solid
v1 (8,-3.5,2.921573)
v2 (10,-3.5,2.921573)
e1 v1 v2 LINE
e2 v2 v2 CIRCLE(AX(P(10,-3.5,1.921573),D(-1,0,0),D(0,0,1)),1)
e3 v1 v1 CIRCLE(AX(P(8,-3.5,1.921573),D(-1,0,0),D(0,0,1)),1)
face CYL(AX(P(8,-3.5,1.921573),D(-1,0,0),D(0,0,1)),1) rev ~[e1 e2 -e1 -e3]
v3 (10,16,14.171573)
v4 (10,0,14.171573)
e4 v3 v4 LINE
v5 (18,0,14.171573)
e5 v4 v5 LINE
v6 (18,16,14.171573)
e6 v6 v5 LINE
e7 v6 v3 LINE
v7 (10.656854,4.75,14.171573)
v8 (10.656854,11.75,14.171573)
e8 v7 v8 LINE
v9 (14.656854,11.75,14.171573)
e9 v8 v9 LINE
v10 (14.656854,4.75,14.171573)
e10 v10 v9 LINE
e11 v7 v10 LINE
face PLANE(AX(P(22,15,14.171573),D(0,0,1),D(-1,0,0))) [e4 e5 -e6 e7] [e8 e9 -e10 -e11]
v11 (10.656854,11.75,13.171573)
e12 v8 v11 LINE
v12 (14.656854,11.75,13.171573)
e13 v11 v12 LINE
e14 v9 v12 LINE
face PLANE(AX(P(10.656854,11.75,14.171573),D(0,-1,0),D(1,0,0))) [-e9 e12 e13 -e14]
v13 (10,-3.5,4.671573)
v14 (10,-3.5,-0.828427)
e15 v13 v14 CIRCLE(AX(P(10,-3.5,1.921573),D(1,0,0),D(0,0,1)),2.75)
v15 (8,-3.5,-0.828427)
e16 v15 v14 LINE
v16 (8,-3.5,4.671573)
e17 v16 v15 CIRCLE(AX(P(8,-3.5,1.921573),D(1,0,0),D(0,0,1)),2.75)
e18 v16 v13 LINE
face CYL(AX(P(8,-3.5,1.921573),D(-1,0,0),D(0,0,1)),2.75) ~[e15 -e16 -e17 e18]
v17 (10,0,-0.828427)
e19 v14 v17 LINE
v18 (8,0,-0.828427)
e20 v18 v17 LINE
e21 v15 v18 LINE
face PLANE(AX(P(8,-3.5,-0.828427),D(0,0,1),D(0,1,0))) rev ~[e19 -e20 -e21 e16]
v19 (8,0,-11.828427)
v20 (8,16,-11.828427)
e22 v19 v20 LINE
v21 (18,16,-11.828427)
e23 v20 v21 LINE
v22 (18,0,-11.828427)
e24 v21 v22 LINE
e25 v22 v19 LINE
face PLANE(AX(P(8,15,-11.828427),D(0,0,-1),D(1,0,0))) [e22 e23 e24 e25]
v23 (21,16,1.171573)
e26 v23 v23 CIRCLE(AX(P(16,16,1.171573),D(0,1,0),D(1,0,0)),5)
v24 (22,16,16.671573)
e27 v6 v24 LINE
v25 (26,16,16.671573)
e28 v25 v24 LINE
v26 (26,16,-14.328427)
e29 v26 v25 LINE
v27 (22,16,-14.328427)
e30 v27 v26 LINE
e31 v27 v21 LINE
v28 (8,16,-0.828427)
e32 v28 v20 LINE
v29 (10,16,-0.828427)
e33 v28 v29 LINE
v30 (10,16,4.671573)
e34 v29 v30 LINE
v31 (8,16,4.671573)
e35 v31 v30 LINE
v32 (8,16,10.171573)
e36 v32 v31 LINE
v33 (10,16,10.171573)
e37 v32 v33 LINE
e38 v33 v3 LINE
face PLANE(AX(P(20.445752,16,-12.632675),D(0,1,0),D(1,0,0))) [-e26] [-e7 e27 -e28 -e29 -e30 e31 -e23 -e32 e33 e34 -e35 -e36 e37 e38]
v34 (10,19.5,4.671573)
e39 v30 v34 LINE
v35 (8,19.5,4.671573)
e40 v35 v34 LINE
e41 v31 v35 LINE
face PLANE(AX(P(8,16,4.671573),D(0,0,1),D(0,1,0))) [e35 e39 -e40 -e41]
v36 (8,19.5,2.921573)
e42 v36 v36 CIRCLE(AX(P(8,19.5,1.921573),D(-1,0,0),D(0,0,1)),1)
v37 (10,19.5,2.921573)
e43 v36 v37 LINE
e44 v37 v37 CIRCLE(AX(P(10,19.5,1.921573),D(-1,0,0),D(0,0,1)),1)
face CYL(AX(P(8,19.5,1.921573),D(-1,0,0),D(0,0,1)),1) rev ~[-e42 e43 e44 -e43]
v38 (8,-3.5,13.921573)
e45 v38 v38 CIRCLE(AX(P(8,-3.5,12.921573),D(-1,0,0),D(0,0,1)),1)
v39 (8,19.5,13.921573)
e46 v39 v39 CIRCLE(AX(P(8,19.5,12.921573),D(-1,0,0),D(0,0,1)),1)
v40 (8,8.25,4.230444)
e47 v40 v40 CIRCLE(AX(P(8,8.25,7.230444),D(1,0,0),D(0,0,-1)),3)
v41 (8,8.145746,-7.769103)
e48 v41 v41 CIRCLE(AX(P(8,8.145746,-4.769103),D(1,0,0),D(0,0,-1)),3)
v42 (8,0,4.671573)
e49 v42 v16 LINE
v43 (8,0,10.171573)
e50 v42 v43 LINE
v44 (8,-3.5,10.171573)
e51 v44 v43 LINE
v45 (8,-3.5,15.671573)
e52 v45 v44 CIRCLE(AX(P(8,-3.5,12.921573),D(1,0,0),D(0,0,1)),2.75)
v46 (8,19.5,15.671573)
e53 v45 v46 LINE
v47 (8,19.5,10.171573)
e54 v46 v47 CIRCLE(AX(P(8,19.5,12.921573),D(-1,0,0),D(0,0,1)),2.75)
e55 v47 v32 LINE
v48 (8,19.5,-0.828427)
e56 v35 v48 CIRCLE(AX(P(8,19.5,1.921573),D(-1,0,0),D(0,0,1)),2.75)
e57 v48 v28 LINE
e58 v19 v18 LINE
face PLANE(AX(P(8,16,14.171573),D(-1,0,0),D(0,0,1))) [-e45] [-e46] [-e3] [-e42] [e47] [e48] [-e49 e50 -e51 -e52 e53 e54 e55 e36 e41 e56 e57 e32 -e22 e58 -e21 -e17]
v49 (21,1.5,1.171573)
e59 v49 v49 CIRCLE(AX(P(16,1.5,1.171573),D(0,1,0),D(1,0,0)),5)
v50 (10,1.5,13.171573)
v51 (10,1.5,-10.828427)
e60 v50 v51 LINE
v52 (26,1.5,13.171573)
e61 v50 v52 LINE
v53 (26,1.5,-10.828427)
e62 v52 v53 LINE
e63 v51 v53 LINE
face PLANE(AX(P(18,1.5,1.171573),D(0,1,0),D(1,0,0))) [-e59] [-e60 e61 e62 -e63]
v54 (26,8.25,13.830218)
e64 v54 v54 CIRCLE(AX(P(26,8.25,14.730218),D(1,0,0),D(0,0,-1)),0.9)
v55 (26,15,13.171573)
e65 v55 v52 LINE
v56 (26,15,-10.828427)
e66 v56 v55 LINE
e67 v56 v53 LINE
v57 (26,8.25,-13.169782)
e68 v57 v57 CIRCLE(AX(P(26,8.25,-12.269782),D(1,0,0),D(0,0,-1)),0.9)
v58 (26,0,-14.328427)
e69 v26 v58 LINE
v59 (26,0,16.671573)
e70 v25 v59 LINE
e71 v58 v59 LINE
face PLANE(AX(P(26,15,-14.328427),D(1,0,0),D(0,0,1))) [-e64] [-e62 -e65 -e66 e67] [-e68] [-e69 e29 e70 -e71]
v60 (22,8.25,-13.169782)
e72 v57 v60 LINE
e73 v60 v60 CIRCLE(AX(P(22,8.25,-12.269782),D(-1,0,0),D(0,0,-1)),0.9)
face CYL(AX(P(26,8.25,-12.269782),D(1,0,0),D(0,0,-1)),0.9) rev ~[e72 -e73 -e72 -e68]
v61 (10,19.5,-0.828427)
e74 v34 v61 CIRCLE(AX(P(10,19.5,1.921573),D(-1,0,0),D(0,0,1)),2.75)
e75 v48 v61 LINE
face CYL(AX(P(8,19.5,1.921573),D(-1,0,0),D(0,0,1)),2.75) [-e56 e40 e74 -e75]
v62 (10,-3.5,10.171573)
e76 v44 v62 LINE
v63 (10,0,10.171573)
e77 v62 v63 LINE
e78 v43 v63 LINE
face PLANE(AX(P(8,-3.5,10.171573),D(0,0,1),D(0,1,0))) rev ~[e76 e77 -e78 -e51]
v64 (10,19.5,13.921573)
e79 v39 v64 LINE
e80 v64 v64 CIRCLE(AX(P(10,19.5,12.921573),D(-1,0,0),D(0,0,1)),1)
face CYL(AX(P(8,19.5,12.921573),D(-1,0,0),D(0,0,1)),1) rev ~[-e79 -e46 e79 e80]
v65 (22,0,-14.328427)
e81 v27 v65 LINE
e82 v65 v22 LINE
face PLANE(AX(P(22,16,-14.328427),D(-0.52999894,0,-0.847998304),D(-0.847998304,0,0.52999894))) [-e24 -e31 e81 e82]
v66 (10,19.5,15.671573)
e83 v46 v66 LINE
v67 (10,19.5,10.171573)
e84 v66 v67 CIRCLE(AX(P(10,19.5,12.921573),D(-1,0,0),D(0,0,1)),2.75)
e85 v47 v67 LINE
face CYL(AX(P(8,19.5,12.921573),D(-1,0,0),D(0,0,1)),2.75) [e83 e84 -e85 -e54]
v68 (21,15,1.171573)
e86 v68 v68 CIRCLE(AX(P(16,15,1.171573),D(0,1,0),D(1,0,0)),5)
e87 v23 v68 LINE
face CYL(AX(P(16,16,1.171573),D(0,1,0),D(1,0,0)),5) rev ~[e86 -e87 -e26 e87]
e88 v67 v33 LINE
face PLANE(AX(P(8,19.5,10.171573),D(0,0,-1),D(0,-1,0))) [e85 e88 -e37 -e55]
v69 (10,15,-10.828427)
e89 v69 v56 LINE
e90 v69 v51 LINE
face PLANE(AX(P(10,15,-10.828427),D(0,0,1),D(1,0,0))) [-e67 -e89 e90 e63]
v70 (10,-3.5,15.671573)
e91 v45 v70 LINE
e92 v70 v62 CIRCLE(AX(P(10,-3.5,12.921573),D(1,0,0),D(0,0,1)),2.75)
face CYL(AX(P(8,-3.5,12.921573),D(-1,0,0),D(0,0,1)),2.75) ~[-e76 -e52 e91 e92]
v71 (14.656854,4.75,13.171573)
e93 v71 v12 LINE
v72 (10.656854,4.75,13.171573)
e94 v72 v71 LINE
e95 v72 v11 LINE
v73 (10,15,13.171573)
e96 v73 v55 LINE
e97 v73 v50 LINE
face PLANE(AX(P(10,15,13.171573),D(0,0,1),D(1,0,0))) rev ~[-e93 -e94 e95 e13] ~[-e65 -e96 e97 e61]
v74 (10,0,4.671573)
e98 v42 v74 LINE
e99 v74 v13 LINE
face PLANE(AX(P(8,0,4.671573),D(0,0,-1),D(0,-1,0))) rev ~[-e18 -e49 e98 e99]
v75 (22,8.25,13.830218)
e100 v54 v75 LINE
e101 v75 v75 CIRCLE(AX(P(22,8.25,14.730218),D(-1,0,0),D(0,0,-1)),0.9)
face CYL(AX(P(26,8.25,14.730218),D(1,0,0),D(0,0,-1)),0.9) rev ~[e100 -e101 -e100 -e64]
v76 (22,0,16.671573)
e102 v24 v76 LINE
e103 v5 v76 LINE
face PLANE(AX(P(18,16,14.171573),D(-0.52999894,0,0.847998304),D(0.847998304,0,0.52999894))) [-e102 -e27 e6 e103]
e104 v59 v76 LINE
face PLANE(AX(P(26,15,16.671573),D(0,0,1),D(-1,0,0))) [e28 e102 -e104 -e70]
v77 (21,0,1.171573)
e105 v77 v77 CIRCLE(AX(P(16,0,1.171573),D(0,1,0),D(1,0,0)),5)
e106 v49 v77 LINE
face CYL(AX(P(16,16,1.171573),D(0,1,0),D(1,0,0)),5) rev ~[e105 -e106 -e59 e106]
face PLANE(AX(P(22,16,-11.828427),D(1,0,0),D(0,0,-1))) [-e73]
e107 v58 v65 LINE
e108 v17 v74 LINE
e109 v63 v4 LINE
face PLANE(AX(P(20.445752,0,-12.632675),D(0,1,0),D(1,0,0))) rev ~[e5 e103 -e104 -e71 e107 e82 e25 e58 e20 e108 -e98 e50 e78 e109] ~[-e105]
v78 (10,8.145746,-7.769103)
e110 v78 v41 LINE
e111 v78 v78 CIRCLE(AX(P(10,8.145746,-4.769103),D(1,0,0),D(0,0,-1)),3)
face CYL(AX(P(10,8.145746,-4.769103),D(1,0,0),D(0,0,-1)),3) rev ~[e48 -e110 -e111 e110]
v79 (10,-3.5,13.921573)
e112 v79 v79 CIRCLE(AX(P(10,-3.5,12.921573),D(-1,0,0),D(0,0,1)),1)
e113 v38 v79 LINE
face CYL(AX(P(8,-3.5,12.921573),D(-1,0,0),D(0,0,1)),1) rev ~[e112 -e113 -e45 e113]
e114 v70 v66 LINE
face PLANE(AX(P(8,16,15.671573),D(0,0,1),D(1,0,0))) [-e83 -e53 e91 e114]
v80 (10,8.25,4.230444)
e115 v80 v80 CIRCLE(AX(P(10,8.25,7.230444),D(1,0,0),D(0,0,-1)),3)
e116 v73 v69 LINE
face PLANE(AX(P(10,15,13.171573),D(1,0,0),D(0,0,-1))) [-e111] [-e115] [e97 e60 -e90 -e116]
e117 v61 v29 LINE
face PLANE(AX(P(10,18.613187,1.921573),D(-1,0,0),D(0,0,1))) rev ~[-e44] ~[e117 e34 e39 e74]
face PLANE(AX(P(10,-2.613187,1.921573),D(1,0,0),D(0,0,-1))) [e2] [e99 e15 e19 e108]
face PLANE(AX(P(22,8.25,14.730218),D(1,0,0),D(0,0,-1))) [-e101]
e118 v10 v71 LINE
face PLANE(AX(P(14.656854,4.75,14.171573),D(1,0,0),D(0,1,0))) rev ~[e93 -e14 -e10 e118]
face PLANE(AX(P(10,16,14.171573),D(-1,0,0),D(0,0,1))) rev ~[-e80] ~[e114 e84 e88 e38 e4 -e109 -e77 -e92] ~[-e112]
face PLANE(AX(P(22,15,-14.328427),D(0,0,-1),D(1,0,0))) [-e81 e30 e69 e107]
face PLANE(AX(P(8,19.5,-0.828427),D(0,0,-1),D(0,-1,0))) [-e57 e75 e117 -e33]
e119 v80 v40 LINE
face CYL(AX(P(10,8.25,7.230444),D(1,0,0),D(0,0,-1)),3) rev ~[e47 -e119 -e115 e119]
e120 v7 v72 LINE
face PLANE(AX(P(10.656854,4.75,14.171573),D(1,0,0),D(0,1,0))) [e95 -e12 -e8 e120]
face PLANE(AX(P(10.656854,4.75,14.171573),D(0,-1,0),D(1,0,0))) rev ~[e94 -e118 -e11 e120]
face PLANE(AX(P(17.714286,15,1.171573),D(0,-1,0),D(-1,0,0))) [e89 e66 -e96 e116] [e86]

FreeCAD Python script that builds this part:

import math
import FreeCAD as App
import Part
import Sketcher
from FreeCAD import Vector
Q = App.Units.Quantity


def add_polygon(sketch, points):
    """Adds a closed chain of lines whose ends are joined by coincident constraints."""
    first, n = sketch.GeometryCount, len(points)
    for a, b in zip(points, points[1:] + points[:1]):
        sketch.addGeometry(Part.LineSegment(App.Vector(*a, 0), App.Vector(*b, 0)), False)
    for i in range(n):
        sketch.addConstraint(Sketcher.Constraint("Coincident", first + i, 2, first + (i + 1) % n, 1))

doc = App.newDocument("Part")
params = doc.addObject("Spreadsheet::Sheet", "Params")
for row, (alias, value) in enumerate([
    ("sketch1_width", "27 mm"),
    ("sketch1_height", "22 mm"),
    ("sketch1_height2", "2 mm"),
    ("pad1_length", "15 mm"),
    ("sketch2_width", "24 mm"),
    ("sketch2_height", "26 mm"),
    ("pad2_length", "15 mm"),
    ("sketch3_width", "16 mm"),
    ("sketch3_height", "24 mm"),
    ("pocket1_length", "13.5 mm"),
    ("sketch4_width", "15 mm"),
    ("sketch4_height", "2.5 mm"),
    ("pad3_length", "4 mm"),
    ("sketch5_diameter", "1.8 mm"),
    ("pocket2_length", "4 mm"),
    ("sketch6_width", "4 mm"),
    ("sketch6_height", "7 mm"),
    ("pocket3_length", "4 mm"),
    ("sketch7_height", "32.5 mm"),
    ("sketch7_width", "38.25 mm"),
    ("sketch8_width", "14 mm"),
    ("sketch8_width2", "4 mm"),
    ("sketch8_height", "26 mm"),
    ("sketch8_height2", "31 mm"),
    ("pad4_length", "1 mm"),
    ("sketch9_diameter", "2 mm"),
    ("sketch9_radius", "2.75 mm"),
    ("sketch9_width", "3.5 mm"),
    ("pad5_length", "2 mm"),
    ("sketch10_diameter", "10 mm"),
    ("pocket5_length", "22 mm"),
    ("linearpattern_pitch", "11 mm"),
    ("sketch11_diameter", "6 mm"),
    ("pocket6_length", "5 mm"),
    ("sketch12_width", "4 mm"),
    ("sketch12_height", "2.5 mm"),
    ("pad6_length", "16 mm"),
    ("sketch13_width", "2 mm"),
    ("sketch13_height", "1.5 mm"),
    ("pad7_length", "16 mm"),
], start=1):
    params.set(f"A{row}", alias)
    params.set(f"B{row}", "=" + value)
    params.setAlias(f"B{row}", alias)

body = doc.addObject("PartDesign::Body", "Body")

sketch1 = body.newObject("Sketcher::SketchObject", "Sketch")
sketch1.AttachmentSupport = (doc.getObject("XZ_Plane"), [""])
sketch1.MapMode = "FlatFace"
add_polygon(sketch1, [(0, -11), (0, 11), (-3.25, 14.25), (-30.25, 14.25), (-30.25, 16.25), (-2.421573, 16.25), (2, 11.828427), (2, -11.828427), (-2.421573, -16.25), (-30.25, -16.25), (-30.25, -14.25), (-3.25, -14.25)])
sketch1.addConstraint(Sketcher.Constraint("Vertical", 0))
sketch1.addConstraint(Sketcher.Constraint("Horizontal", 2))
sketch1.addConstraint(Sketcher.Constraint("Vertical", 3))
sketch1.addConstraint(Sketcher.Constraint("Horizontal", 4))
sketch1.addConstraint(Sketcher.Constraint("Vertical", 6))
sketch1.addConstraint(Sketcher.Constraint("Horizontal", 8))
sketch1.addConstraint(Sketcher.Constraint("Vertical", 9))
sketch1.addConstraint(Sketcher.Constraint("Horizontal", 10))
sketch1.addConstraint(Sketcher.Constraint("Symmetric", 0, 2, 11, 2, -1, 1))
sketch1.addConstraint(Sketcher.Constraint("Symmetric", 4, 2, 7, 2, -1))
sketch1.addConstraint(Sketcher.Constraint("Symmetric", 2, 2, 9, 2, -1))
sketch1.addConstraint(Sketcher.Constraint("Parallel", 1, 5))
sketch1.addConstraint(Sketcher.Constraint("Perpendicular", 5, 7))
sketch1.addConstraint(Sketcher.Constraint("Parallel", 7, 11))
sketch1.addConstraint(Sketcher.Constraint("Vertical", 1, 2, 10, 2))
sketch1.addConstraint(Sketcher.Constraint("DistanceX", 2, 2, 2, 1, Q("27 mm")))
sketch1.addConstraint(Sketcher.Constraint("DistanceY", 0, 1, 0, 2, Q("22 mm")))
sketch1.addConstraint(Sketcher.Constraint("DistanceY", 3, 1, 3, 2, Q("2 mm")))
sketch1.addConstraint(Sketcher.Constraint("DistanceX", -1, 1, 5, 2, Q("2 mm")))
sketch1.addConstraint(Sketcher.Constraint("DistanceY", 7, 2, 1, 2, Q("30.5 mm")))
sketch1.addConstraint(Sketcher.Constraint("Distance", 5, Q("6.253048 mm")))
sketch1.setExpression("Constraints[27]", "Params.sketch1_width")
sketch1.setExpression("Constraints[28]", "Params.sketch1_height")
sketch1.setExpression("Constraints[29]", "Params.sketch1_height2")
pad1 = body.newObject("PartDesign::Pad", "Pad")
pad1.Profile = sketch1
pad1.setExpression("Length", "Params.pad1_length")
pad1.Reversed = True

sketch2 = body.newObject("Sketcher::SketchObject", "Sketch001")
sketch2.AttachmentSupport = (doc.getObject("XZ_Plane"), [""])
sketch2.MapMode = "FlatFace"
add_polygon(sketch2, [(26, 14.171573), (-0.343146, 14.171573), (2, 11.828427), (2, -11.828427), (26, -11.828427)])
sketch2.addConstraint(Sketcher.Constraint("Horizontal", 0))
sketch2.addConstraint(Sketcher.Constraint("Vertical", 2))
sketch2.addConstraint(Sketcher.Constraint("Horizontal", 3))
sketch2.addConstraint(Sketcher.Constraint("Vertical", 4))
sketch2.addConstraint(Sketcher.Constraint("DistanceX", 3, 1, 3, 2, Q("24 mm")))
sketch2.addConstraint(Sketcher.Constraint("DistanceY", 4, 1, 4, 2, Q("26 mm")))
sketch2.addConstraint(Sketcher.Constraint("Angle", 1, Q("-45 deg")))
sketch2.addConstraint(Sketcher.Constraint("DistanceX", -1, 1, 1, 2, Q("2 mm")))
sketch2.addConstraint(Sketcher.Constraint("Distance", 1, Q("3.313708 mm")))
sketch2.addConstraint(Sketcher.Constraint("DistanceY", -1, 1, 0, 2, Q("14.171573 mm")))
sketch2.setExpression("Constraints[9]", "Params.sketch2_width")
sketch2.setExpression("Constraints[10]", "Params.sketch2_height")
pad2 = body.newObject("PartDesign::Pad", "Pad001")
pad2.Profile = sketch2
pad2.setExpression("Length", "Params.pad2_length")
pad2.Reversed = True

sketch3 = body.newObject("Sketcher::SketchObject", "Sketch002")
sketch3.AttachmentSupport = (doc.getObject("XZ_Plane"), [""])
sketch3.MapMode = "FlatFace"
sketch3.AttachmentOffset = App.Placement(Vector(0, 0, -15), App.Rotation())
add_polygon(sketch3, [(10, -10.828427), (10, 13.171573), (26, 13.171573), (26, -10.828427)])
sketch3.addConstraint(Sketcher.Constraint("Vertical", 0))
sketch3.addConstraint(Sketcher.Constraint("Horizontal", 1))
sketch3.addConstraint(Sketcher.Constraint("Vertical", 2))
sketch3.addConstraint(Sketcher.Constraint("Horizontal", 3))
sketch3.addConstraint(Sketcher.Constraint("DistanceX", 1, 1, 1, 2, Q("16 mm")))
sketch3.addConstraint(Sketcher.Constraint("DistanceY", 0, 1, 0, 2, Q("24 mm")))
sketch3.addConstraint(Sketcher.Constraint("DistanceX", -1, 1, 0, 2, Q("10 mm")))
sketch3.addConstraint(Sketcher.Constraint("DistanceY", -1, 1, 0, 2, Q("13.171573 mm")))
sketch3.setExpression("Constraints[8]", "Params.sketch3_width")
sketch3.setExpression("Constraints[9]", "Params.sketch3_height")
pocket1 = body.newObject("PartDesign::Pocket", "Pocket")
pocket1.Profile = sketch3
pocket1.setExpression("Length", "Params.pocket1_length")
pocket1.Reversed = True

sketch4 = body.newObject("Sketcher::SketchObject", "Sketch003")
sketch4.AttachmentSupport = (doc.getObject("YZ_Plane"), [""])
sketch4.MapMode = "FlatFace"
sketch4.AttachmentOffset = App.Placement(Vector(0, 0, 26), App.Rotation())
add_polygon(sketch4, [(15, 16.671573), (0, 16.671573), (0, 14.171573), (15, 14.171573)])
add_polygon(sketch4, [(15, -11.828427), (0, -11.828427), (0, -14.328427), (15, -14.328427)])
sketch4.addConstraint(Sketcher.Constraint("Horizontal", 0))
sketch4.addConstraint(Sketcher.Constraint("Vertical", 1))
sketch4.addConstraint(Sketcher.Constraint("Horizontal", 2))
sketch4.addConstraint(Sketcher.Constraint("Vertical", 3))
sketch4.addConstraint(Sketcher.Constraint("Horizontal", 4))
sketch4.addConstraint(Sketcher.Constraint("Vertical", 5))
sketch4.addConstraint(Sketcher.Constraint("Horizontal", 6))
sketch4.addConstraint(Sketcher.Constraint("Vertical", 7))
sketch4.addConstraint(Sketcher.Constraint("PointOnObject", 0, 2, -2))
sketch4.addConstraint(Sketcher.Constraint("PointOnObject", 4, 2, -2))
sketch4.addConstraint(Sketcher.Constraint("Vertical", 3, 2, 6, 2))
sketch4.addConstraint(Sketcher.Constraint("Equal", 3, 5))
sketch4.addConstraint(Sketcher.Constraint("DistanceX", 0, 2, 0, 1, Q("15 mm")))
sketch4.addConstraint(Sketcher.Constraint("DistanceY", 1, 2, 1, 1, Q("2.5 mm")))
sketch4.addConstraint(Sketcher.Constraint("DistanceY", 4, 2, 1, 2, Q("26 mm")))
sketch4.addConstraint(Sketcher.Constraint("DistanceY", -1, 1, 0, 2, Q("16.671573 mm")))
sketch4.setExpression("Constraints[20]", "Params.sketch4_width")
sketch4.setExpression("Constraints[21]", "Params.sketch4_height")
pad3 = body.newObject("PartDesign::Pad", "Pad002")
pad3.Profile = sketch4
pad3.setExpression("Length", "Params.pad3_length")
pad3.Reversed = True

sketch5 = body.newObject("Sketcher::SketchObject", "Sketch004")
sketch5.AttachmentSupport = (doc.getObject("YZ_Plane"), [""])
sketch5.MapMode = "FlatFace"
sketch5.AttachmentOffset = App.Placement(Vector(0, 0, 26), App.Rotation())
sketch5.addGeometry(Part.Circle(Vector(8.25, 14.730218, 0), Vector(0, 0, 1), 0.9), False)
sketch5.addGeometry(Part.Circle(Vector(8.25, -12.269782, 0), Vector(0, 0, 1), 0.9), False)
sketch5.addConstraint(Sketcher.Constraint("Equal", 0, 1))
sketch5.addConstraint(Sketcher.Constraint("Vertical", 0, 3, 1, 3))
sketch5.addConstraint(Sketcher.Constraint("Diameter", 0, Q("1.8 mm")))
sketch5.addConstraint(Sketcher.Constraint("DistanceY", 1, 3, 0, 3, Q("27 mm")))
sketch5.addConstraint(Sketcher.Constraint("DistanceX", -1, 1, 0, 3, Q("8.25 mm")))
sketch5.addConstraint(Sketcher.Constraint("DistanceY", -1, 1, 0, 3, Q("14.730218 mm")))
sketch5.setExpression("Constraints[2]", "Params.sketch5_diameter")
pocket2 = body.newObject("PartDesign::Pocket", "Pocket001")
pocket2.Profile = sketch5
pocket2.setExpression("Length", "Params.pocket2_length")

sketch6 = body.newObject("Sketcher::SketchObject", "Sketch005")
sketch6.AttachmentSupport = (doc.getObject("XY_Plane"), [""])
sketch6.MapMode = "FlatFace"
sketch6.AttachmentOffset = App.Placement(Vector(0, 0, 14.171573), App.Rotation())
add_polygon(sketch6, [(10.656854, 11.75), (10.656854, 4.75), (14.656854, 4.75), (14.656854, 11.75)])
sketch6.addConstraint(Sketcher.Constraint("Vertical", 0))
sketch6.addConstraint(Sketcher.Constraint("Horizontal", 1))
sketch6.addConstraint(Sketcher.Constraint("Vertical", 2))
sketch6.addConstraint(Sketcher.Constraint("Horizontal", 3))
sketch6.addConstraint(Sketcher.Constraint("DistanceX", 1, 1, 1, 2, Q("4 mm")))
sketch6.addConstraint(Sketcher.Constraint("DistanceY", 0, 2, 0, 1, Q("7 mm")))
sketch6.addConstraint(Sketcher.Constraint("DistanceY", -1, 1, 0, 2, Q("4.75 mm")))
sketch6.addConstraint(Sketcher.Constraint("DistanceX", -1, 1, 0, 2, Q("10.656854 mm")))
sketch6.setExpression("Constraints[8]", "Params.sketch6_width")
sketch6.setExpression("Constraints[9]", "Params.sketch6_height")
pocket3 = body.newObject("PartDesign::Pocket", "Pocket002")
pocket3.Profile = sketch6
pocket3.setExpression("Length", "Params.pocket3_length")

sketch7 = body.newObject("Sketcher::SketchObject", "Sketch006")
sketch7.AttachmentSupport = (doc.getObject("XZ_Plane"), [""])
sketch7.MapMode = "FlatFace"
sketch7.AttachmentOffset = App.Placement(Vector(0, 0, -15), App.Rotation())
add_polygon(sketch7, [(-30.25, -16.25), (-30.25, 16.25), (8, 16.25), (8, -16.25)])
sketch7.addConstraint(Sketcher.Constraint("Vertical", 0))
sketch7.addConstraint(Sketcher.Constraint("Horizontal", 1))
sketch7.addConstraint(Sketcher.Constraint("Vertical", 2))
sketch7.addConstraint(Sketcher.Constraint("Horizontal", 3))
sketch7.addConstraint(Sketcher.Constraint("DistanceY", 0, 1, 0, 2, Q("32.5 mm")))
sketch7.addConstraint(Sketcher.Constraint("DistanceX", -1, 1, 1, 2, Q("8 mm")))
sketch7.addConstraint(Sketcher.Constraint("DistanceX", 1, 1, 1, 2, Q("38.25 mm")))
sketch7.addConstraint(Sketcher.Constraint("DistanceY", -1, 1, 0, 2, Q("16.25 mm")))
sketch7.setExpression("Constraints[8]", "Params.sketch7_height")
sketch7.setExpression("Constraints[10]", "Params.sketch7_width")
pocket4 = body.newObject("PartDesign::Pocket", "Pocket003")
pocket4.Profile = sketch7
pocket4.Type = "ThroughAll"
pocket4.Reversed = True

sketch8 = body.newObject("Sketcher::SketchObject", "Sketch007")
sketch8.AttachmentSupport = (doc.getObject("XZ_Plane"), [""])
sketch8.MapMode = "FlatFace"
sketch8.AttachmentOffset = App.Placement(Vector(0, 0, -15), App.Rotation())
add_polygon(sketch8, [(22, -11.828427), (8, -11.828427), (8, 14.171573), (22, 14.171573), (22, 16.671573), (26, 16.671573), (26, -14.328427), (22, -14.328427)])
sketch8.addConstraint(Sketcher.Constraint("Horizontal", 0))
sketch8.addConstraint(Sketcher.Constraint("Vertical", 1))
sketch8.addConstraint(Sketcher.Constraint("Horizontal", 2))
sketch8.addConstraint(Sketcher.Constraint("Vertical", 3))
sketch8.addConstraint(Sketcher.Constraint("Horizontal", 4))
sketch8.addConstraint(Sketcher.Constraint("Vertical", 5))
sketch8.addConstraint(Sketcher.Constraint("Horizontal", 6))
sketch8.addConstraint(Sketcher.Constraint("Vertical", 7))
sketch8.addConstraint(Sketcher.Constraint("Vertical", 3, 2, 6, 2))
sketch8.addConstraint(Sketcher.Constraint("Equal", 3, 7))
sketch8.addConstraint(Sketcher.Constraint("DistanceX", 0, 2, 0, 1, Q("14 mm")))
sketch8.addConstraint(Sketcher.Constraint("DistanceX", 4, 1, 4, 2, Q("4 mm")))
sketch8.addConstraint(Sketcher.Constraint("DistanceY", 1, 1, 1, 2, Q("26 mm")))
sketch8.addConstraint(Sketcher.Constraint("DistanceY", 5, 2, 5, 1, Q("31 mm")))
sketch8.addConstraint(Sketcher.Constraint("DistanceX", -1, 1, 0, 2, Q("8 mm")))
sketch8.addConstraint(Sketcher.Constraint("DistanceY", 0, 2, -1, 1, Q("11.828427 mm")))
sketch8.setExpression("Constraints[18]", "Params.sketch8_width")
sketch8.setExpression("Constraints[19]", "Params.sketch8_width2")
sketch8.setExpression("Constraints[20]", "Params.sketch8_height")
sketch8.setExpression("Constraints[21]", "Params.sketch8_height2")
pad4 = body.newObject("PartDesign::Pad", "Pad003")
pad4.Profile = sketch8
pad4.setExpression("Length", "Params.pad4_length")
pad4.Reversed = True

sketch9 = body.newObject("Sketcher::SketchObject", "Sketch008")
sketch9.AttachmentSupport = (doc.getObject("YZ_Plane"), [""])
sketch9.MapMode = "FlatFace"
sketch9.AttachmentOffset = App.Placement(Vector(0, 0, 8), App.Rotation())
sketch9.addGeometry(Part.LineSegment(Vector(0, 10.171573, 0), Vector(-3.5, 10.171573, 0)), False)
sketch9.addGeometry(Part.ArcOfCircle(Part.Circle(Vector(-3.5, 12.921573, 0), Vector(0, 0, 1), 2.75), math.radians(90), math.radians(270)), False)
sketch9.addGeometry(Part.LineSegment(Vector(-3.5, 15.671573, 0), Vector(0, 15.671573, 0)), False)
sketch9.addGeometry(Part.LineSegment(Vector(0, 15.671573, 0), Vector(0, 10.171573, 0)), False)
sketch9.addGeometry(Part.Circle(Vector(-3.5, 12.921573, 0), Vector(0, 0, 1), 1), False)
sketch9.addGeometry(Part.LineSegment(Vector(16, 10.171573, 0), Vector(16, 15.671573, 0)), False)
sketch9.addGeometry(Part.LineSegment(Vector(16, 15.671573, 0), Vector(19.5, 15.671573, 0)), False)
sketch9.addGeometry(Part.ArcOfCircle(Part.Circle(Vector(19.5, 12.921573, 0), Vector(0, 0, 1), 2.75), math.radians(-90), math.radians(90)), False)
sketch9.addGeometry(Part.LineSegment(Vector(19.5, 10.171573, 0), Vector(16, 10.171573, 0)), False)
sketch9.addGeometry(Part.Circle(Vector(19.5, 12.921573, 0), Vector(0, 0, 1), 1), False)
sketch9.addConstraint(Sketcher.Constraint("Tangent", 0, 2, 1, 2))
sketch9.addConstraint(Sketcher.Constraint("Tangent", 1, 1, 2, 1))
sketch9.addConstraint(Sketcher.Constraint("Coincident", 2, 2, 3, 1))
sketch9.addConstraint(Sketcher.Constraint("Coincident", 3, 2, 0, 1))
sketch9.addConstraint(Sketcher.Constraint("Coincident", 5, 2, 6, 1))
sketch9.addConstraint(Sketcher.Constraint("Tangent", 6, 2, 7, 2))
sketch9.addConstraint(Sketcher.Constraint("Tangent", 7, 1, 8, 1))
sketch9.addConstraint(Sketcher.Constraint("Coincident", 8, 2, 5, 1))
sketch9.addConstraint(Sketcher.Constraint("Horizontal", 0))
sketch9.addConstraint(Sketcher.Constraint("Horizontal", 2))
sketch9.addConstraint(Sketcher.Constraint("Vertical", 3))
sketch9.addConstraint(Sketcher.Constraint("Vertical", 5))
sketch9.addConstraint(Sketcher.Constraint("Horizontal", 6))
sketch9.addConstraint(Sketcher.Constraint("Horizontal", 8))
sketch9.addConstraint(Sketcher.Constraint("Coincident", 4, 3, 1, 3))
sketch9.addConstraint(Sketcher.Constraint("Coincident", 9, 3, 7, 3))
sketch9.addConstraint(Sketcher.Constraint("Equal", 1, 7))
sketch9.addConstraint(Sketcher.Constraint("Equal", 4, 9))
sketch9.addConstraint(Sketcher.Constraint("PointOnObject", 2, 2, -2))
sketch9.addConstraint(Sketcher.Constraint("Horizontal", 4, 3, 7, 3))
sketch9.addConstraint(Sketcher.Constraint("Equal", 2, 6))
sketch9.addConstraint(Sketcher.Constraint("Diameter", 4, Q("2 mm")))
sketch9.addConstraint(Sketcher.Constraint("Radius", 1, Q("2.75 mm")))
sketch9.addConstraint(Sketcher.Constraint("DistanceX", 0, 2, 0, 1, Q("3.5 mm")))
sketch9.addConstraint(Sketcher.Constraint("DistanceX", -1, 1, 5, 2, Q("16 mm")))
sketch9.addConstraint(Sketcher.Constraint("DistanceY", -1, 1, 1, 3, Q("12.921573 mm")))
sketch9.setExpression("Constraints[21]", "Params.sketch9_diameter")
sketch9.setExpression("Constraints[22]", "Params.sketch9_radius")
sketch9.setExpression("Constraints[23]", "Params.sketch9_width")
pad5 = body.newObject("PartDesign::Pad", "Pad004")
pad5.Profile = sketch9
pad5.setExpression("Length", "Params.pad5_length")

sketch10 = body.newObject("Sketcher::SketchObject", "Sketch009")
sketch10.AttachmentSupport = (doc.getObject("XZ_Plane"), [""])
sketch10.MapMode = "FlatFace"
sketch10.AttachmentOffset = App.Placement(Vector(0, 0, -16), App.Rotation())
sketch10.addGeometry(Part.Circle(Vector(16, 1.171573, 0), Vector(0, 0, 1), 5), False)
sketch10.addConstraint(Sketcher.Constraint("Diameter", 0, Q("10 mm")))
sketch10.addConstraint(Sketcher.Constraint("DistanceX", -1, 1, 0, 3, Q("16 mm")))
sketch10.addConstraint(Sketcher.Constraint("DistanceY", -1, 1, 0, 3, Q("1.171573 mm")))
sketch10.setExpression("Constraints[0]", "Params.sketch10_diameter")
pocket5 = body.newObject("PartDesign::Pocket", "Pocket004")
pocket5.Profile = sketch10
pocket5.setExpression("Length", "Params.pocket5_length")
pocket5.Reversed = True
doc.recompute()

linearpattern = body.newObject("PartDesign::LinearPattern", "LinearPattern")
linearpattern.Originals = [pad5]
linearpattern.Direction = (doc.getObject("Z_Axis"), [""])
linearpattern.Mode = "offset"
linearpattern.setExpression("Offset", "Params.linearpattern_pitch")
linearpattern.Occurrences = 2
linearpattern.Reversed = True
body.Tip = linearpattern

sketch11 = body.newObject("Sketcher::SketchObject", "Sketch010")
sketch11.AttachmentSupport = (doc.getObject("YZ_Plane"), [""])
sketch11.MapMode = "FlatFace"
sketch11.AttachmentOffset = App.Placement(Vector(0, 0, 10), App.Rotation())
sketch11.addGeometry(Part.Circle(Vector(8.25, 7.230444, 0), Vector(0, 0, 1), 3), False)
sketch11.addGeometry(Part.Circle(Vector(8.145746, -4.769103, 0), Vector(0, 0, 1), 3), False)
sketch11.addConstraint(Sketcher.Constraint("Equal", 0, 1))
sketch11.addConstraint(Sketcher.Constraint("Diameter", 0, Q("6 mm")))
sketch11.addConstraint(Sketcher.Constraint("DistanceX", -1, 1, 0, 3, Q("8.25 mm")))
sketch11.addConstraint(Sketcher.Constraint("DistanceY", -1, 1, 0, 3, Q("7.230444 mm")))
sketch11.addConstraint(Sketcher.Constraint("DistanceX", -1, 1, 1, 3, Q("8.145746 mm")))
sketch11.addConstraint(Sketcher.Constraint("DistanceY", 1, 3, -1, 1, Q("4.769103 mm")))
sketch11.setExpression("Constraints[1]", "Params.sketch11_diameter")
pocket6 = body.newObject("PartDesign::Pocket", "Pocket005")
pocket6.Profile = sketch11
pocket6.setExpression("Length", "Params.pocket6_length")

sketch12 = body.newObject("Sketcher::SketchObject", "Sketch011")
sketch12.AttachmentSupport = (doc.getObject("XZ_Plane"), [""])
sketch12.MapMode = "FlatFace"
sketch12.AttachmentOffset = App.Placement(Vector(0, 0, -16), App.Rotation())
add_polygon(sketch12, [(22, -14.328427), (18, -11.828427), (22, -11.828427)])
add_polygon(sketch12, [(22, 14.171573), (18, 14.171573), (22, 16.671573)])
sketch12.addConstraint(Sketcher.Constraint("Horizontal", 1))
sketch12.addConstraint(Sketcher.Constraint("Vertical", 2))
sketch12.addConstraint(Sketcher.Constraint("Horizontal", 3))
sketch12.addConstraint(Sketcher.Constraint("Vertical", 5))
sketch12.addConstraint(Sketcher.Constraint("Vertical", 0, 2, 3, 2))
sketch12.addConstraint(Sketcher.Constraint("Vertical", 2, 2, 4, 2))
sketch12.addConstraint(Sketcher.Constraint("Equal", 2, 5))
sketch12.addConstraint(Sketcher.Constraint("DistanceX", 1, 1, 1, 2, Q("4 mm")))
sketch12.addConstraint(Sketcher.Constraint("DistanceY", 2, 2, 2, 1, Q("2.5 mm")))
sketch12.addConstraint(Sketcher.Constraint("DistanceX", -1, 1, 0, 2, Q("18 mm")))
sketch12.addConstraint(Sketcher.Constraint("DistanceY", 0, 2, 3, 2, Q("26 mm")))
sketch12.addConstraint(Sketcher.Constraint("DistanceY", 0, 2, -1, 1, Q("11.828427 mm")))
sketch12.setExpression("Constraints[13]", "Params.sketch12_width")
sketch12.setExpression("Constraints[14]", "Params.sketch12_height")
pad6 = body.newObject("PartDesign::Pad", "Pad005")
pad6.Profile = sketch12
pad6.setExpression("Length", "Params.pad6_length")

sketch13 = body.newObject("Sketcher::SketchObject", "Sketch012")
sketch13.AttachmentSupport = (doc.getObject("XZ_Plane"), [""])
sketch13.MapMode = "FlatFace"
sketch13.AttachmentOffset = App.Placement(Vector(0, 0, -16), App.Rotation())
add_polygon(sketch13, [(8, 15.671573), (8, 14.171573), (10, 14.171573), (10, 15.671573)])
sketch13.addConstraint(Sketcher.Constraint("Vertical", 0))
sketch13.addConstraint(Sketcher.Constraint("Horizontal", 1))
sketch13.addConstraint(Sketcher.Constraint("Vertical", 2))
sketch13.addConstraint(Sketcher.Constraint("Horizontal", 3))
sketch13.addConstraint(Sketcher.Constraint("DistanceX", 1, 1, 1, 2, Q("2 mm")))
sketch13.addConstraint(Sketcher.Constraint("DistanceY", 0, 2, 0, 1, Q("1.5 mm")))
sketch13.addConstraint(Sketcher.Constraint("DistanceX", -1, 1, 0, 2, Q("8 mm")))
sketch13.addConstraint(Sketcher.Constraint("DistanceY", -1, 1, 0, 2, Q("14.171573 mm")))
sketch13.setExpression("Constraints[8]", "Params.sketch13_width")
sketch13.setExpression("Constraints[9]", "Params.sketch13_height")
pad7 = body.newObject("PartDesign::Pad", "Pad006")
pad7.Profile = sketch13
pad7.setExpression("Length", "Params.pad7_length")

doc.recompute()
